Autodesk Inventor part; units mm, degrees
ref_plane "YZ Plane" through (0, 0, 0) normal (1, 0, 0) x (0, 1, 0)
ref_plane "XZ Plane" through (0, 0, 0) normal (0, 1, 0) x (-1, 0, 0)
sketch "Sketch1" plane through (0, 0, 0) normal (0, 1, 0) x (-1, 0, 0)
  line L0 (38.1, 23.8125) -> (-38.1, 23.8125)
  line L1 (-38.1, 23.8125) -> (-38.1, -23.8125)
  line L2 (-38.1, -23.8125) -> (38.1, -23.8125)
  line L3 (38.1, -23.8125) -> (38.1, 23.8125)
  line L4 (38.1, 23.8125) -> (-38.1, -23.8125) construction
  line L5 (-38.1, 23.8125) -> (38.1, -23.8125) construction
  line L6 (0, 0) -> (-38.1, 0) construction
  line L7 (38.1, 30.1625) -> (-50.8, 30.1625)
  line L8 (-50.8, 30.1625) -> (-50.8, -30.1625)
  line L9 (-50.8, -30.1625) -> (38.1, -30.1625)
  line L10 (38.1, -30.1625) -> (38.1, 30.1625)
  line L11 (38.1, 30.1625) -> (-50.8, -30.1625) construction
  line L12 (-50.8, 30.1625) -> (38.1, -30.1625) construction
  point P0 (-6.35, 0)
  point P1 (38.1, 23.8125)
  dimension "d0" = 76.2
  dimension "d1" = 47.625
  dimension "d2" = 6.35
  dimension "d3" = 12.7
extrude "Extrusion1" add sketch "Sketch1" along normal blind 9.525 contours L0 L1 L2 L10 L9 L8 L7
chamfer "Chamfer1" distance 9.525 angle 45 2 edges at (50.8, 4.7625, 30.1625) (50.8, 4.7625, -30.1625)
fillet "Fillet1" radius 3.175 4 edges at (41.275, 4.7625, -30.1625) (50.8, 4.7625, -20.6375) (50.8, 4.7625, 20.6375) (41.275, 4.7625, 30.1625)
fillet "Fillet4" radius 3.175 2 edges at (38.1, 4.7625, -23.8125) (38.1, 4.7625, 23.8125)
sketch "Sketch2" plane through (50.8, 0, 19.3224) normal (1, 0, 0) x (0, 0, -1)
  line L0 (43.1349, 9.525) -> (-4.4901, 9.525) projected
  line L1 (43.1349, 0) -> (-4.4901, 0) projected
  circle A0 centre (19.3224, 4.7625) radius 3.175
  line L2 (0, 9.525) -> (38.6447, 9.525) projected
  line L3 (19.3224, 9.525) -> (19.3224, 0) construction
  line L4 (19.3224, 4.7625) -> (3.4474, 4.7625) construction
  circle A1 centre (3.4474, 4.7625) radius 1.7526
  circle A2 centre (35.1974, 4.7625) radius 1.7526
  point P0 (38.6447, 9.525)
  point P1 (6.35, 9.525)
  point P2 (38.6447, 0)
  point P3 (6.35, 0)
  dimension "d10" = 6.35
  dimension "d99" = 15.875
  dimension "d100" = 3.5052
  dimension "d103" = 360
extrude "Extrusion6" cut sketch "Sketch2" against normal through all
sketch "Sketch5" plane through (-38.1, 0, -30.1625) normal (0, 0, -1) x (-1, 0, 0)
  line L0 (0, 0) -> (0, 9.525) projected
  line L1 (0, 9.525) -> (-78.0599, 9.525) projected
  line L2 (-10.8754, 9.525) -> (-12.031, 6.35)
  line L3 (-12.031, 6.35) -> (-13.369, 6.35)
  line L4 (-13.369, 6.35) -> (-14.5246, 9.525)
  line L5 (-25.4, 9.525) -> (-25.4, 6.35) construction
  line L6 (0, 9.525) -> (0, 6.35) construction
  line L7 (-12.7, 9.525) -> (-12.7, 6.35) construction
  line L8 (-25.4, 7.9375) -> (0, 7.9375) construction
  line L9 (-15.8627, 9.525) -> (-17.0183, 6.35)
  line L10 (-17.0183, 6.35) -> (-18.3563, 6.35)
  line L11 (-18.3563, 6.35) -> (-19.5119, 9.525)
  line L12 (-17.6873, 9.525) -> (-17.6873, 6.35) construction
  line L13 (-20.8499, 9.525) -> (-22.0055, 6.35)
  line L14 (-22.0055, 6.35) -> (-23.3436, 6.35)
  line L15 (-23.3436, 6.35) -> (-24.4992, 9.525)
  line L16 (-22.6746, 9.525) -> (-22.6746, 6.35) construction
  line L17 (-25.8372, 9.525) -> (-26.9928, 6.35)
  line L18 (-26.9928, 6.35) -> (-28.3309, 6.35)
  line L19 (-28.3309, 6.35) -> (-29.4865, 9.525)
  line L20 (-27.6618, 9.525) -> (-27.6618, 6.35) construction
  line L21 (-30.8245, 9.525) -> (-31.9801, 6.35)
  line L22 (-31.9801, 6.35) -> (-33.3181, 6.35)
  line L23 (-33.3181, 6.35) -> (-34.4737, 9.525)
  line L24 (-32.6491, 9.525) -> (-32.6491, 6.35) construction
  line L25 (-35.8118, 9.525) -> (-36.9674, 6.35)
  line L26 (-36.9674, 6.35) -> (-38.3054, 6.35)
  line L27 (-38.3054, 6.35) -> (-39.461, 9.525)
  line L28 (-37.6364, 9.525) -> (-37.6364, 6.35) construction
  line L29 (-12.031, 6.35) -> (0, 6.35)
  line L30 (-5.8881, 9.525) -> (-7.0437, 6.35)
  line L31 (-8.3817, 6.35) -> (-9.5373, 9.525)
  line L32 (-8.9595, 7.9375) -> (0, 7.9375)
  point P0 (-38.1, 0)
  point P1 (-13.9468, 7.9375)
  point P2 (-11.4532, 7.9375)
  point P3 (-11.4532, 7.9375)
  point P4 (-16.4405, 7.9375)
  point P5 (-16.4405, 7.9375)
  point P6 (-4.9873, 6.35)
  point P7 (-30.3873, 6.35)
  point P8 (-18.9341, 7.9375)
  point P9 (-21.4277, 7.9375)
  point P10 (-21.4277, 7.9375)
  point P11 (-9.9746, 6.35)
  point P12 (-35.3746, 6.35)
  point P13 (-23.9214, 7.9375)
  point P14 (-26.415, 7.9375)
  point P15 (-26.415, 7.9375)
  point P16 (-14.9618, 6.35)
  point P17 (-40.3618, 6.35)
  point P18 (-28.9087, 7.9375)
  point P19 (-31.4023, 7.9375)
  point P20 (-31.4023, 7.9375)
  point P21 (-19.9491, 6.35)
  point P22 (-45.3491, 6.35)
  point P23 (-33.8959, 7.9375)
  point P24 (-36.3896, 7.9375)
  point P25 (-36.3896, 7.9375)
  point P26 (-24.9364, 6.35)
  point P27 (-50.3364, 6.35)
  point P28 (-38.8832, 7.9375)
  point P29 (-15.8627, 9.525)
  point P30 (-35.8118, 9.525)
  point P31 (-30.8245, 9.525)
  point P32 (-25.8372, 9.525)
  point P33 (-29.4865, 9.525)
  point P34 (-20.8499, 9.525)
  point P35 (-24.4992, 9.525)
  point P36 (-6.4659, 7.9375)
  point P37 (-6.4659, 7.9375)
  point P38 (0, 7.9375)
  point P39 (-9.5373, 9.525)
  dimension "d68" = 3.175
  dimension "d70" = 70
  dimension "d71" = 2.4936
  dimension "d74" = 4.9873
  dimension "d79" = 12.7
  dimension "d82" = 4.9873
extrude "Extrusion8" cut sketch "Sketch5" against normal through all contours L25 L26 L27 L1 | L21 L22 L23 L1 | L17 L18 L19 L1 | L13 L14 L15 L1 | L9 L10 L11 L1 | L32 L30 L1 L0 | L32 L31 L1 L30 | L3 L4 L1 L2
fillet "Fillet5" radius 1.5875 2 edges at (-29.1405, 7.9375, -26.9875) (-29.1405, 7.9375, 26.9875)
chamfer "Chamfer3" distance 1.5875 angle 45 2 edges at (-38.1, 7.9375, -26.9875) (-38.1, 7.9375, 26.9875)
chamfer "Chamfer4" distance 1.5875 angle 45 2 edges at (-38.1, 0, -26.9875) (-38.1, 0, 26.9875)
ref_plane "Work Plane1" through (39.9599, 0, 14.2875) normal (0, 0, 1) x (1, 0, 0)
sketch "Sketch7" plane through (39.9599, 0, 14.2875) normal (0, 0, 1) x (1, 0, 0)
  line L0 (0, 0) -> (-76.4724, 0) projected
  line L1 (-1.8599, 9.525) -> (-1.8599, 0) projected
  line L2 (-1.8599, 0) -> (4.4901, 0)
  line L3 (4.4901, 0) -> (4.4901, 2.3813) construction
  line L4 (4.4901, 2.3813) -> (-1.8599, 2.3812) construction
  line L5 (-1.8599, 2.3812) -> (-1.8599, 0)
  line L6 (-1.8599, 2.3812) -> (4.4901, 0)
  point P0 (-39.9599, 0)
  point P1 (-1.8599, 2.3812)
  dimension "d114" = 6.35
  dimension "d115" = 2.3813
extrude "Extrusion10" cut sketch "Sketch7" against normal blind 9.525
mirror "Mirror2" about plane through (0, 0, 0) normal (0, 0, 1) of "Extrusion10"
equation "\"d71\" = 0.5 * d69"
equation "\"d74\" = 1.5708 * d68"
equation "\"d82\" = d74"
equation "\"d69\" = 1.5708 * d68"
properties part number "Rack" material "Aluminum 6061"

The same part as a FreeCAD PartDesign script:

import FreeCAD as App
import Part
import Sketcher
Q = App.Units.Quantity


def edges_at(feature, points):
    """Names of the edges that pass closest to the given points."""
    edges = feature.Shape.Edges
    near = lambda p: min(range(len(edges)), key=lambda i: edges[i].distToShape(Part.Vertex(*p))[0])
    return sorted({f"Edge{near(p) + 1}" for p in points})

doc = App.newDocument("Part")
params = doc.addObject("Spreadsheet::Sheet", "Params")
for row, (alias, value) in enumerate([
    ("sketch1_width", "3 in"),
    ("sketch1_height", "0.25 in"),
    ("sketch1_height2", "1.875 in"),
    ("pad1_length", "0.375 in"),
    ("chamfer_size", "0.375 in"),
    ("fillet_radius", "0.125 in"),
    ("fillet2_radius", "0.125 in"),
    ("sketch2_diameter", "0.25 in"),
    ("sketch2_diameter2", "0.138 in"),
    ("sketch3_height", "0.0625 in"),
    ("fillet3_radius", "0.0625 in"),
    ("chamfer2_size", "0.0625 in"),
    ("chamfer3_size", "0.0625 in"),
    ("sketch4_width", "0.25 in"),
    ("sketch4_height", "0.093748 in"),
    ("pocket3_length", "0.375 in"),
], start=1):
    params.set(f"A{row}", alias)
    params.set(f"B{row}", "=" + value)
    params.setAlias(f"B{row}", alias)

body = doc.addObject("PartDesign::Body", "Body")

sketch1 = body.newObject("Sketcher::SketchObject", "Sketch")
sketch1.AttachmentSupport = (doc.getObject("XZ_Plane"), [""])
sketch1.MapMode = "FlatFace"
sketch1.addGeometry([
    Part.LineSegment(App.Vector(38, 24, 0), App.Vector(-38, 24, 0)),
    Part.LineSegment(App.Vector(-38, 24, 0), App.Vector(-38, 30, 0)),
    Part.LineSegment(App.Vector(-38, 30, 0), App.Vector(51, 30, 0)),
    Part.LineSegment(App.Vector(51, 30, 0), App.Vector(51, -30, 0)),
    Part.LineSegment(App.Vector(51, -30, 0), App.Vector(-38, -30, 0)),
    Part.LineSegment(App.Vector(-38, -30, 0), App.Vector(-38, -24, 0)),
    Part.LineSegment(App.Vector(-38, -24, 0), App.Vector(38, -24, 0)),
    Part.LineSegment(App.Vector(38, -24, 0), App.Vector(38, 24, 0)),
], False)
sketch1.addConstraint([
    Sketcher.Constraint("Coincident", 0, 2, 1, 1),
    Sketcher.Constraint("Coincident", 1, 2, 2, 1),
    Sketcher.Constraint("Coincident", 2, 2, 3, 1),
    Sketcher.Constraint("Coincident", 3, 2, 4, 1),
    Sketcher.Constraint("Coincident", 4, 2, 5, 1),
    Sketcher.Constraint("Coincident", 5, 2, 6, 1),
    Sketcher.Constraint("Coincident", 6, 2, 7, 1),
    Sketcher.Constraint("Coincident", 7, 2, 0, 1),
    Sketcher.Constraint("Horizontal", 0),
    Sketcher.Constraint("Vertical", 1),
    Sketcher.Constraint("Horizontal", 2),
    Sketcher.Constraint("Vertical", 3),
    Sketcher.Constraint("Horizontal", 4),
    Sketcher.Constraint("Vertical", 5),
    Sketcher.Constraint("Horizontal", 6),
    Sketcher.Constraint("Vertical", 7),
    Sketcher.Constraint("Symmetric", 0, 2, 6, 2, -1, 1),
    Sketcher.Constraint("Symmetric", 1, 2, 4, 2, -1),
    Sketcher.Constraint("DistanceX", 0, 2, 0, 1, Q("3 in")),
    Sketcher.Constraint("DistanceY", 1, 1, 1, 2, Q("0.25 in")),
    Sketcher.Constraint("DistanceX", 6, 2, 3, 2, Q("0.5 in")),
    Sketcher.Constraint("DistanceY", 7, 1, 7, 2, Q("1.875 in")),
])
sketch1.setExpression("Constraints[18]", "Params.sketch1_width")
sketch1.setExpression("Constraints[19]", "Params.sketch1_height")
sketch1.setExpression("Constraints[21]", "Params.sketch1_height2")
pad1 = body.newObject("PartDesign::Pad", "Pad")
pad1.Profile = sketch1
pad1.setExpression("Length", "Params.pad1_length")
pad1.Reversed = True
doc.recompute()

chamfer = body.newObject("PartDesign::Chamfer", "Chamfer")
chamfer.Base = (pad1, edges_at(pad1, [(50.8, 4.763, 30.163), (50.8, 4.763, -30.163)]))
chamfer.setExpression("Size", "Params.chamfer_size")
doc.recompute()

fillet = body.newObject("PartDesign::Fillet", "Fillet")
fillet.Base = (chamfer, edges_at(chamfer, [
    (41.275, 4.763, -30.163),
    (50.8, 4.763, -20.637),
    (50.8, 4.763, 20.637),
    (41.275, 4.763, 30.163),
]))
fillet.setExpression("Radius", "Params.fillet_radius")
doc.recompute()

fillet2 = body.newObject("PartDesign::Fillet", "Fillet001")
fillet2.Base = (fillet, edges_at(fillet, [(38.1, 4.763, -23.812), (38.1, 4.763, 23.812)]))
fillet2.setExpression("Radius", "Params.fillet2_radius")

sketch2 = body.newObject("Sketcher::SketchObject", "Sketch001")
sketch2.AttachmentSupport = (doc.getObject("YZ_Plane"), [""])
sketch2.MapMode = "FlatFace"
sketch2.AttachmentOffset = App.Placement(App.Vector(0, 0, 2 * 25.4), App.Rotation())
sketch2.addGeometry([
    Part.Circle(App.Vector(4.8, 0, 0), App.Vector(0, 0, 1), 3.2),
    Part.Circle(App.Vector(4.8, 15.9, 0), App.Vector(0, 0, 1), 1.8),
    Part.Circle(App.Vector(4.8, -15.9, 0), App.Vector(0, 0, 1), 1.8),
], False)
sketch2.addConstraint([
    Sketcher.Constraint("Equal", 1, 2),
    Sketcher.Constraint("Symmetric", 1, 3, 2, 3, -1),
    Sketcher.Constraint("PointOnObject", 0, 3, -1),
    Sketcher.Constraint("Vertical", 0, 3, 1, 3),
    Sketcher.Constraint("Diameter", 0, Q("0.25 in")),
    Sketcher.Constraint("Diameter", 1, Q("0.138 in")),
    Sketcher.Constraint("DistanceY", -1, 1, 1, 3, Q("0.625 in")),
    Sketcher.Constraint("DistanceX", -1, 1, 0, 3, Q("0.1875 in")),
])
sketch2.setExpression("Constraints[4]", "Params.sketch2_diameter")
sketch2.setExpression("Constraints[5]", "Params.sketch2_diameter2")
pocket1 = body.newObject("PartDesign::Pocket", "Pocket")
pocket1.Profile = sketch2
pocket1.Type = "ThroughAll"

sketch3 = body.newObject("Sketcher::SketchObject", "Sketch002")
sketch3.AttachmentSupport = (doc.getObject("XY_Plane"), [""])
sketch3.MapMode = "FlatFace"
sketch3.AttachmentOffset = App.Placement(App.Vector(0, 0, -1.1875 * 25.4), App.Rotation())
sketch3.addGeometry([
    Part.LineSegment(App.Vector(-1.1, 6.3, 0), App.Vector(-2.3, 9.5, 0)),
    Part.LineSegment(App.Vector(-2.3, 9.5, 0), App.Vector(1.4, 9.5, 0)),
    Part.LineSegment(App.Vector(1.4, 9.5, 0), App.Vector(0.2, 6.3, 0)),
    Part.LineSegment(App.Vector(0.2, 6.3, 0), App.Vector(-1.1, 6.3, 0)),
    Part.LineSegment(App.Vector(-6.1, 6.3, 0), App.Vector(-7.3, 9.5, 0)),
    Part.LineSegment(App.Vector(-7.3, 9.5, 0), App.Vector(-3.6, 9.5, 0)),
    Part.LineSegment(App.Vector(-3.6, 9.5, 0), App.Vector(-4.8, 6.3, 0)),
    Part.LineSegment(App.Vector(-4.8, 6.3, 0), App.Vector(-6.1, 6.3, 0)),
    Part.LineSegment(App.Vector(-11.1, 6.3, 0), App.Vector(-12.3, 9.5, 0)),
    Part.LineSegment(App.Vector(-12.3, 9.5, 0), App.Vector(-8.6, 9.5, 0)),
    Part.LineSegment(App.Vector(-8.6, 9.5, 0), App.Vector(-9.8, 6.3, 0)),
    Part.LineSegment(App.Vector(-9.8, 6.3, 0), App.Vector(-11.1, 6.3, 0)),
    Part.LineSegment(App.Vector(-16.1, 6.3, 0), App.Vector(-17.3, 9.5, 0)),
    Part.LineSegment(App.Vector(-17.3, 9.5, 0), App.Vector(-13.6, 9.5, 0)),
    Part.LineSegment(App.Vector(-13.6, 9.5, 0), App.Vector(-14.8, 6.3, 0)),
    Part.LineSegment(App.Vector(-14.8, 6.3, 0), App.Vector(-16.1, 6.3, 0)),
    Part.LineSegment(App.Vector(-21.1, 6.3, 0), App.Vector(-22.2, 9.5, 0)),
    Part.LineSegment(App.Vector(-22.2, 9.5, 0), App.Vector(-18.6, 9.5, 0)),
    Part.LineSegment(App.Vector(-18.6, 9.5, 0), App.Vector(-19.7, 6.3, 0)),
    Part.LineSegment(App.Vector(-19.7, 6.3, 0), App.Vector(-21.1, 6.3, 0)),
    Part.LineSegment(App.Vector(-38.1, 7.9, 0), App.Vector(-38.1, 9.5, 0)),
    Part.LineSegment(App.Vector(-38.1, 9.5, 0), App.Vector(-28.6, 9.5, 0)),
    Part.LineSegment(App.Vector(-28.6, 9.5, 0), App.Vector(-29.1, 7.9, 0)),
    Part.LineSegment(App.Vector(-29.1, 7.9, 0), App.Vector(-38.1, 7.9, 0)),
    Part.LineSegment(App.Vector(-24.7, 6.3, 0), App.Vector(-26.1, 6.3, 0)),
    Part.LineSegment(App.Vector(-26.1, 6.3, 0), App.Vector(-27.2, 9.5, 0)),
    Part.LineSegment(App.Vector(-27.2, 9.5, 0), App.Vector(-23.6, 9.5, 0)),
    Part.LineSegment(App.Vector(-23.6, 9.5, 0), App.Vector(-24.7, 6.3, 0)),
], False)
sketch3.addConstraint([
    Sketcher.Constraint("Coincident", 0, 2, 1, 1),
    Sketcher.Constraint("Coincident", 1, 2, 2, 1),
    Sketcher.Constraint("Coincident", 2, 2, 3, 1),
    Sketcher.Constraint("Coincident", 3, 2, 0, 1),
    Sketcher.Constraint("Coincident", 4, 2, 5, 1),
    Sketcher.Constraint("Coincident", 5, 2, 6, 1),
    Sketcher.Constraint("Coincident", 6, 2, 7, 1),
    Sketcher.Constraint("Coincident", 7, 2, 4, 1),
    Sketcher.Constraint("Coincident", 8, 2, 9, 1),
    Sketcher.Constraint("Coincident", 9, 2, 10, 1),
    Sketcher.Constraint("Coincident", 10, 2, 11, 1),
    Sketcher.Constraint("Coincident", 11, 2, 8, 1),
    Sketcher.Constraint("Coincident", 12, 2, 13, 1),
    Sketcher.Constraint("Coincident", 13, 2, 14, 1),
    Sketcher.Constraint("Coincident", 14, 2, 15, 1),
    Sketcher.Constraint("Coincident", 15, 2, 12, 1),
    Sketcher.Constraint("Coincident", 16, 2, 17, 1),
    Sketcher.Constraint("Coincident", 17, 2, 18, 1),
    Sketcher.Constraint("Coincident", 18, 2, 19, 1),
    Sketcher.Constraint("Coincident", 19, 2, 16, 1),
    Sketcher.Constraint("Coincident", 20, 2, 21, 1),
    Sketcher.Constraint("Coincident", 21, 2, 22, 1),
    Sketcher.Constraint("Coincident", 22, 2, 23, 1),
    Sketcher.Constraint("Coincident", 23, 2, 20, 1),
    Sketcher.Constraint("Coincident", 24, 2, 25, 1),
    Sketcher.Constraint("Coincident", 25, 2, 26, 1),
    Sketcher.Constraint("Coincident", 26, 2, 27, 1),
    Sketcher.Constraint("Coincident", 27, 2, 24, 1),
    Sketcher.Constraint("Horizontal", 1),
    Sketcher.Constraint("Horizontal", 3),
    Sketcher.Constraint("Horizontal", 5),
    Sketcher.Constraint("Horizontal", 7),
    Sketcher.Constraint("Horizontal", 9),
    Sketcher.Constraint("Horizontal", 11),
    Sketcher.Constraint("Horizontal", 13),
    Sketcher.Constraint("Horizontal", 15),
    Sketcher.Constraint("Horizontal", 17),
    Sketcher.Constraint("Horizontal", 19),
    Sketcher.Constraint("Vertical", 20),
    Sketcher.Constraint("Horizontal", 21),
    Sketcher.Constraint("Horizontal", 23),
    Sketcher.Constraint("Horizontal", 24),
    Sketcher.Constraint("Horizontal", 26),
    Sketcher.Constraint("Parallel", 0, 4),
    Sketcher.Constraint("Parallel", 2, 6),
    Sketcher.Constraint("Parallel", 4, 8),
    Sketcher.Constraint("Parallel", 6, 10),
    Sketcher.Constraint("Parallel", 8, 12),
    Sketcher.Constraint("Parallel", 10, 14),
    Sketcher.Constraint("Parallel", 12, 16),
    Sketcher.Constraint("Parallel", 14, 18),
    Sketcher.Constraint("Parallel", 18, 22),
    Sketcher.Constraint("Parallel", 16, 25),
    Sketcher.Constraint("Parallel", 22, 27),
    Sketcher.Constraint("Horizontal", 1, 2, 4, 2),
    Sketcher.Constraint("Horizontal", 3, 2, 6, 2),
    Sketcher.Constraint("Horizontal", 5, 2, 8, 2),
    Sketcher.Constraint("Horizontal", 7, 2, 10, 2),
    Sketcher.Constraint("Horizontal", 9, 2, 12, 2),
    Sketcher.Constraint("Horizontal", 11, 2, 14, 2),
    Sketcher.Constraint("Horizontal", 13, 2, 16, 2),
    Sketcher.Constraint("Horizontal", 15, 2, 18, 2),
    Sketcher.Constraint("Horizontal", 17, 2, 20, 2),
    Sketcher.Constraint("Horizontal", 19, 2, 24, 2),
    Sketcher.Constraint("Horizontal", 21, 2, 25, 2),
    Sketcher.Constraint("Equal", 1, 5),
    Sketcher.Constraint("Equal", 5, 9),
    Sketcher.Constraint("Equal", 9, 13),
    Sketcher.Constraint("Equal", 13, 17),
    Sketcher.Constraint("Equal", 19, 24),
    Sketcher.Constraint("Equal", 0, 2),
    Sketcher.Constraint("Angle", 0, Q("110 deg")),
    Sketcher.Constraint("DistanceY", 2, 2, 1, 2, Q("0.125 in")),
    Sketcher.Constraint("DistanceX", 20, 2, -1, 1, Q("1.5 in")),
    Sketcher.Constraint("DistanceY", 20, 1, 20, 2, Q("0.0625 in")),
    Sketcher.Constraint("DistanceY", -1, 1, 2, 2, Q("0.25 in")),
    Sketcher.Constraint("DistanceX", 19, 2, -1, 1, Q("0.83 in")),
    Sketcher.Constraint("DistanceX", 0, 2, 2, 2, Q("2.4936 mm")),
    Sketcher.Constraint("DistanceX", 4, 2, 0, 2, Q("4.9873 mm")),
    Sketcher.Constraint("DistanceX", 8, 2, 4, 2, Q("4.9873 mm")),
    Sketcher.Constraint("DistanceX", 12, 2, 8, 2, Q("4.9873 mm")),
    Sketcher.Constraint("DistanceX", 16, 2, 12, 2, Q("4.9872 mm")),
    Sketcher.Constraint("DistanceX", 21, 2, 24, 2, Q("2.4937 mm")),
    Sketcher.Constraint("DistanceX", 24, 2, 19, 2, Q("4.9873 mm")),
])
sketch3.setExpression("Constraints[74]", "Params.sketch3_height")
pocket2 = body.newObject("PartDesign::Pocket", "Pocket001")
pocket2.Profile = sketch3
pocket2.Type = "ThroughAll"
pocket2.Reversed = True
doc.recompute()

fillet3 = body.newObject("PartDesign::Fillet", "Fillet002")
fillet3.Base = (pocket2, edges_at(pocket2, [(-29.14, 7.938, -26.988), (-29.14, 7.938, 26.988)]))
fillet3.setExpression("Radius", "Params.fillet3_radius")
doc.recompute()

chamfer2 = body.newObject("PartDesign::Chamfer", "Chamfer001")
chamfer2.Base = (fillet3, edges_at(fillet3, [(-38.1, 7.938, -26.988), (-38.1, 7.938, 26.988)]))
chamfer2.setExpression("Size", "Params.chamfer2_size")
doc.recompute()

chamfer3 = body.newObject("PartDesign::Chamfer", "Chamfer002")
chamfer3.Base = (chamfer2, edges_at(chamfer2, [(-38.1, 0, -26.988), (-38.1, 0, 26.988)]))
chamfer3.setExpression("Size", "Params.chamfer3_size")

sketch4 = body.newObject("Sketcher::SketchObject", "Sketch003")
sketch4.AttachmentSupport = (doc.getObject("XY_Plane"), [""])
sketch4.MapMode = "FlatFace"
sketch4.AttachmentOffset = App.Placement(App.Vector(0, 0, 0.5625 * 25.4), App.Rotation())
sketch4.addGeometry([
    Part.LineSegment(App.Vector(38.1, 0, 0), App.Vector(44.5, 0, 0)),
    Part.LineSegment(App.Vector(44.5, 0, 0), App.Vector(38.1, 2.4, 0)),
    Part.LineSegment(App.Vector(38.1, 2.4, 0), App.Vector(38.1, 0, 0)),
], False)
sketch4.addConstraint([
    Sketcher.Constraint("Coincident", 0, 2, 1, 1),
    Sketcher.Constraint("Coincident", 1, 2, 2, 1),
    Sketcher.Constraint("Coincident", 2, 2, 0, 1),
    Sketcher.Constraint("Horizontal", 0),
    Sketcher.Constraint("Vertical", 2),
    Sketcher.Constraint("PointOnObject", 0, 2, -1),
    Sketcher.Constraint("DistanceX", 0, 1, 0, 2, Q("0.25 in")),
    Sketcher.Constraint("DistanceY", 2, 2, 2, 1, Q("0.093748 in")),
    Sketcher.Constraint("DistanceX", -1, 1, 1, 2, Q("1.5 in")),
])
sketch4.setExpression("Constraints[6]", "Params.sketch4_width")
sketch4.setExpression("Constraints[7]", "Params.sketch4_height")
pocket3 = body.newObject("PartDesign::Pocket", "Pocket002")
pocket3.Profile = sketch4
pocket3.setExpression("Length", "Params.pocket3_length")
doc.recompute()

mirrored = body.newObject("PartDesign::Mirrored", "Mirrored")
mirrored.Originals = [pocket3]
mirrored.MirrorPlane = (doc.getObject("XY_Plane"), [""])
body.Tip = mirrored

doc.recompute()
